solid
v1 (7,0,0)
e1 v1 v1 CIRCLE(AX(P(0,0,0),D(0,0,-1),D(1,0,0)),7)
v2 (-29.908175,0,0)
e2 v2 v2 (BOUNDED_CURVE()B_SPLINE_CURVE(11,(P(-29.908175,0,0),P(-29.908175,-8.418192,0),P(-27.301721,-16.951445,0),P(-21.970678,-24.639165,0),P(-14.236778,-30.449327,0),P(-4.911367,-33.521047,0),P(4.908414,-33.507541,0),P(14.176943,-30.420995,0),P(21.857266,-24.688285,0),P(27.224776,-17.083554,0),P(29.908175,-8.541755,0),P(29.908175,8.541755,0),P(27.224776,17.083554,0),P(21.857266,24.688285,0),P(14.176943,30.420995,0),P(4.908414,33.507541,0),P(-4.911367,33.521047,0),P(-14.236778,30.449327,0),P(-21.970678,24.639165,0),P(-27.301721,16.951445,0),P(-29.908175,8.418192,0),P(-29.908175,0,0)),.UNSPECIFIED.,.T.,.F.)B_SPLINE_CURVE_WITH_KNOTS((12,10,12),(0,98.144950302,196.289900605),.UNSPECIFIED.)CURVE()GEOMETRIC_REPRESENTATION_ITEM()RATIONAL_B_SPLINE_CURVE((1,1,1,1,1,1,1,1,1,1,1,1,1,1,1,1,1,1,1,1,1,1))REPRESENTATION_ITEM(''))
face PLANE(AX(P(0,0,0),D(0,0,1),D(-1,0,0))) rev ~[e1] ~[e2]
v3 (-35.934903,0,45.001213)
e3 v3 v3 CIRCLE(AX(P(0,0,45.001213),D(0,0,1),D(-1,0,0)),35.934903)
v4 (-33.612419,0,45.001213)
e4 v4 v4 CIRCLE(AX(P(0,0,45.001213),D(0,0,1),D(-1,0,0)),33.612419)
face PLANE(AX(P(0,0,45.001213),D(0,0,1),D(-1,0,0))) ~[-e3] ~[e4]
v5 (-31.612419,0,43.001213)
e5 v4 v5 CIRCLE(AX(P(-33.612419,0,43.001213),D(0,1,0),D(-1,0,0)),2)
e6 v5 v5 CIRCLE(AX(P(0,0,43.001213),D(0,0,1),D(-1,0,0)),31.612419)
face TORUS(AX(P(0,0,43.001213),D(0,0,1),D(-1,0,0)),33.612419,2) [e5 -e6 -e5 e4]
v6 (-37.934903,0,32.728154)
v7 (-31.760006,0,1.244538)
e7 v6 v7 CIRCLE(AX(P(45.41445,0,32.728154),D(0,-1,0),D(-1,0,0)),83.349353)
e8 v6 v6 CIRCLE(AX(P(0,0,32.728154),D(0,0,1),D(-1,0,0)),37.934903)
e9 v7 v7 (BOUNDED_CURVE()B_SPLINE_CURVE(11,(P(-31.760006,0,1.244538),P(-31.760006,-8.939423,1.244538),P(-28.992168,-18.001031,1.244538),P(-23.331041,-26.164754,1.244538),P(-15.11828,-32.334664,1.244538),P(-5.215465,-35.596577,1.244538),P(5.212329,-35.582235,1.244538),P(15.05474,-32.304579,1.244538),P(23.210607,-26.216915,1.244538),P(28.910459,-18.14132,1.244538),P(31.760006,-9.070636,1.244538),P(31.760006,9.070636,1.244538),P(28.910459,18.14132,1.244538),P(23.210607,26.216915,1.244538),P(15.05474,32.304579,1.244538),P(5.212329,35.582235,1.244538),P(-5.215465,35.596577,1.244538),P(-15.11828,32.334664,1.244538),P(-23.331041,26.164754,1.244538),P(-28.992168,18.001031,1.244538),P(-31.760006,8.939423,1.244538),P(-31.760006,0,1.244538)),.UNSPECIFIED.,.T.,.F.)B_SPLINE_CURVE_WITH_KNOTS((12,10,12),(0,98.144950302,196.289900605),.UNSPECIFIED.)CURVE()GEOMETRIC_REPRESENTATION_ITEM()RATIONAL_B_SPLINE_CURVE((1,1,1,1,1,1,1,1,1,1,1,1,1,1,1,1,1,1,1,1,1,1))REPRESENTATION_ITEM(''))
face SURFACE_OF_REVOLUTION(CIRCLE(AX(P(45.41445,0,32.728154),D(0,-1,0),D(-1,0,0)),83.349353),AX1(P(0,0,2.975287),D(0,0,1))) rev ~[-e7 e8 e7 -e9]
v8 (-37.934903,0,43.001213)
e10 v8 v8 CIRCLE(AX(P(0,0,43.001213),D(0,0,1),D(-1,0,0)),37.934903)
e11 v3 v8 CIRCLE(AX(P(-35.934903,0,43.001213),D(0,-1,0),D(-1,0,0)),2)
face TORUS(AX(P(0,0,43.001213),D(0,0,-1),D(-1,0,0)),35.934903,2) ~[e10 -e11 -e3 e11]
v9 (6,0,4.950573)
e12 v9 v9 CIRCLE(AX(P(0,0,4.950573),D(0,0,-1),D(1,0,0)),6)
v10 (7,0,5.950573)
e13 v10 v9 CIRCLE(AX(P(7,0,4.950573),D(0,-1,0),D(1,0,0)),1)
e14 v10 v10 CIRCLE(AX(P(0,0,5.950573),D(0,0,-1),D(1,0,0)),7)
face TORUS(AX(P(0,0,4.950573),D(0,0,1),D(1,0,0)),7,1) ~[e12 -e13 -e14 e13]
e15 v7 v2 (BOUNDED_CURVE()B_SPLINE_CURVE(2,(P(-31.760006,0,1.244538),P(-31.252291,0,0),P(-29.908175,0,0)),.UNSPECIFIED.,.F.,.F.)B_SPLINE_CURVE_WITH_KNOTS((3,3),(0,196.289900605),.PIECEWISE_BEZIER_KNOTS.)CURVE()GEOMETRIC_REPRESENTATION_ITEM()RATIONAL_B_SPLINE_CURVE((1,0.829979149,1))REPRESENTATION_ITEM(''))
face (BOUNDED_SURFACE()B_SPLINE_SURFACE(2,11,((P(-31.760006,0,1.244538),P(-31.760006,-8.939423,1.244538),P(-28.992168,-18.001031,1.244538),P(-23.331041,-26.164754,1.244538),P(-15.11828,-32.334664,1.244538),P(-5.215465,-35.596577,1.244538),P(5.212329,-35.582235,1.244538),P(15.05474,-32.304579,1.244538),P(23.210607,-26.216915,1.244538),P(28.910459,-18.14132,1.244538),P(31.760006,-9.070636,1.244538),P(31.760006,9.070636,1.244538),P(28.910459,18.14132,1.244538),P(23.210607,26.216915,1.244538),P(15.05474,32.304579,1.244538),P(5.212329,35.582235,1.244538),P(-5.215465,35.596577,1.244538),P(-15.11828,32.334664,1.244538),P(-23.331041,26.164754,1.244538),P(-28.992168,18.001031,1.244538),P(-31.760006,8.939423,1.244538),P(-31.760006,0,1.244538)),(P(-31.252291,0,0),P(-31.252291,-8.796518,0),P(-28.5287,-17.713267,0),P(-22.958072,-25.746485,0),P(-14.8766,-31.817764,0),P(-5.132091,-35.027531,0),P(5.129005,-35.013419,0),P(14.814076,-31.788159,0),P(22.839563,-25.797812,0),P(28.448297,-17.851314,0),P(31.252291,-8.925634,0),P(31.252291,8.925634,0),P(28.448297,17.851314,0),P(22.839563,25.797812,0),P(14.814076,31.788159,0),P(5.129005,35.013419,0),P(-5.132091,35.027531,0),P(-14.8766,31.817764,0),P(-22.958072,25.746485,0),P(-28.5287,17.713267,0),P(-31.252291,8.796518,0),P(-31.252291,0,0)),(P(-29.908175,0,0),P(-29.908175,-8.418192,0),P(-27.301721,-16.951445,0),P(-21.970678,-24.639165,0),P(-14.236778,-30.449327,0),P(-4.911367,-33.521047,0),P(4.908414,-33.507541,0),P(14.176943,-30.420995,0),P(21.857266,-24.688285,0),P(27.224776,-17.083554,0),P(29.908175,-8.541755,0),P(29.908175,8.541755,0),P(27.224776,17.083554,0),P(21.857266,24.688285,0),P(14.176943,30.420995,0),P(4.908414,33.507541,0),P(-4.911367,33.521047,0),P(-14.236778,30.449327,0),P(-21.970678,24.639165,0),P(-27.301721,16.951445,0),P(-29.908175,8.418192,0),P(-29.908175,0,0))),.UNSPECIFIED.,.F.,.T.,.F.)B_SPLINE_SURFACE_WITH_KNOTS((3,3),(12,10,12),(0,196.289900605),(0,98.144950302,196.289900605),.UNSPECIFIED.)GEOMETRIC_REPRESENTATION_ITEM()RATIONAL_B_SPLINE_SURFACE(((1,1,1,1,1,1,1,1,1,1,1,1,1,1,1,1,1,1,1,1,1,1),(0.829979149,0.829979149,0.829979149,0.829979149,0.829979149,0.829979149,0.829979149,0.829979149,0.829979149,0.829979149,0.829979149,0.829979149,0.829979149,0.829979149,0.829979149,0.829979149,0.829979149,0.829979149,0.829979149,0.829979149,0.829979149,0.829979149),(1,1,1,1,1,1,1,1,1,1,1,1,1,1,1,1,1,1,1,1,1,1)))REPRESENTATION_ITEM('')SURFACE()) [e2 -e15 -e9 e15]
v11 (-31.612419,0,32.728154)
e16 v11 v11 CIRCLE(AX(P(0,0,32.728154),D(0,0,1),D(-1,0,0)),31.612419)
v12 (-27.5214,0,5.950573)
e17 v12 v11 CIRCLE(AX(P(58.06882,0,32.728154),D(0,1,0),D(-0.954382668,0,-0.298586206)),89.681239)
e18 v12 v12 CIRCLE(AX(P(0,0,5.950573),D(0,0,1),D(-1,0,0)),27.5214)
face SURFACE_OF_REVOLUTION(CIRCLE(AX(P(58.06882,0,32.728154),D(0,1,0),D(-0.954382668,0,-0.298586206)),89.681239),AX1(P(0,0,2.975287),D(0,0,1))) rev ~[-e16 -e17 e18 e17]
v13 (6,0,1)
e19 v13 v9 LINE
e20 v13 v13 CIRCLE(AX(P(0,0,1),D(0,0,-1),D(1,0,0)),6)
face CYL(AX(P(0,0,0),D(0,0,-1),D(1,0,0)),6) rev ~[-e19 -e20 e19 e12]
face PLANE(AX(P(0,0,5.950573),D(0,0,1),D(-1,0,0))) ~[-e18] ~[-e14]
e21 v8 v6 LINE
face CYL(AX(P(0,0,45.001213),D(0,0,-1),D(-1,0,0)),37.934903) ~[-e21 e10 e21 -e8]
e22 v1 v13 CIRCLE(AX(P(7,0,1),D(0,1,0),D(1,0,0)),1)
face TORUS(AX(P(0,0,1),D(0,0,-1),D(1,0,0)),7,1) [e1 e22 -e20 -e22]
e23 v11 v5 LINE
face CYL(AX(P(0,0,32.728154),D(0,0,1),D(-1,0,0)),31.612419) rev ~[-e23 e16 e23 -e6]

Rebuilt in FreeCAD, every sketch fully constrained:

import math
import FreeCAD as App
import Part
import Sketcher

V = App.Vector
Q = App.Units.Quantity


def edges_at(feature, points):
    """Names of the edges that pass closest to the given points."""
    edges = feature.Shape.Edges
    near = lambda p: min(range(len(edges)), key=lambda i: edges[i].distToShape(Part.Vertex(*p))[0])
    return sorted({f"Edge{near(p) + 1}" for p in points})

doc = App.newDocument("Part")
params = doc.addObject("Spreadsheet::Sheet", "Params")
for row, (alias, value) in enumerate([
    ("revolution_angle", "360 deg"),
    ("fillet_radius", "2 mm"),
    ("fillet2_radius", "2 mm"),
    ("sketch2_diameter", "12 mm"),
    ("pocket1_length", "25 mm"),
    ("fillet3_radius", "1 mm"),
], start=1):
    params.set(f"A{row}", alias)
    params.set(f"B{row}", "=" + value)
    params.setAlias(f"B{row}", alias)

body = doc.addObject("PartDesign::Body", "Body")

sketch1 = body.newObject("Sketcher::SketchObject", "Sketch")
sketch1.AttachmentSupport = (doc.getObject("XZ_Plane"), [""])
sketch1.MapMode = "FlatFace"
sketch1.addGeometry(Part.LineSegment(V(-31.612419, 45.001213, 0), V(-37.934903, 45.001213, 0)), False)
sketch1.addGeometry(Part.LineSegment(V(-37.934903, 45.001213, 0), V(-37.934903, 32.728154, 0)), False)
sketch1.addGeometry(Part.ArcOfCircle(Part.Circle(V(45.41445, 32.728154, 0), V(0, 0, 1), 83.349353), math.radians(180), math.radians(203.120261)), False)
sketch1.addGeometry(Part.LineSegment(V(-31.240508, 0, 0), V(0, 0, 0)), False)
sketch1.addGeometry(Part.LineSegment(V(0, 0, 0), V(0, 5.950573, 0)), False)
sketch1.addGeometry(Part.LineSegment(V(0, 5.950573, 0), V(-27.5214, 5.950573, 0)), False)
sketch1.addGeometry(Part.ArcOfCircle(Part.Circle(V(58.06882, 32.728154, 0), V(0, 0, 1), 89.681239), math.radians(180), math.radians(197.372707)), False)
sketch1.addGeometry(Part.LineSegment(V(-31.612419, 32.728154, 0), V(-31.612419, 45.001213, 0)), False)
sketch1.addConstraint(Sketcher.Constraint("Coincident", 0, 2, 1, 1))
sketch1.addConstraint(Sketcher.Constraint("Tangent", 1, 2, 2, 1))
sketch1.addConstraint(Sketcher.Constraint("Coincident", 2, 2, 3, 1))
sketch1.addConstraint(Sketcher.Constraint("Coincident", 3, 2, 4, 1))
sketch1.addConstraint(Sketcher.Constraint("Coincident", 4, 2, 5, 1))
sketch1.addConstraint(Sketcher.Constraint("Coincident", 5, 2, 6, 2))
sketch1.addConstraint(Sketcher.Constraint("Tangent", 6, 1, 7, 1))
sketch1.addConstraint(Sketcher.Constraint("Coincident", 7, 2, 0, 1))
sketch1.addConstraint(Sketcher.Constraint("Horizontal", 0))
sketch1.addConstraint(Sketcher.Constraint("Vertical", 1))
sketch1.addConstraint(Sketcher.Constraint("Horizontal", 3))
sketch1.addConstraint(Sketcher.Constraint("Vertical", 4))
sketch1.addConstraint(Sketcher.Constraint("Horizontal", 5))
sketch1.addConstraint(Sketcher.Constraint("Vertical", 7))
sketch1.addConstraint(Sketcher.Constraint("Coincident", 3, 2, -1, 1))
sketch1.addConstraint(Sketcher.Constraint("Horizontal", 2, 3, 6, 3))
sketch1.addConstraint(Sketcher.Constraint("Radius", 6, Q("89.681239 mm")))
sketch1.addConstraint(Sketcher.Constraint("DistanceX", 5, 2, 5, 1, Q("27.5214 mm")))
sketch1.addConstraint(Sketcher.Constraint("Radius", 2, Q("83.349353 mm")))
sketch1.addConstraint(Sketcher.Constraint("DistanceY", 1, 2, 1, 1, Q("12.273058 mm")))
sketch1.addConstraint(Sketcher.Constraint("DistanceX", 0, 2, 0, 1, Q("6.322484 mm")))
sketch1.addConstraint(Sketcher.Constraint("DistanceX", 3, 1, 3, 2, Q("31.240508 mm")))
sketch1.addConstraint(Sketcher.Constraint("DistanceY", 4, 1, 4, 2, Q("5.950573 mm")))
revolution = body.newObject("PartDesign::Revolution", "Revolution")
revolution.Profile = sketch1
revolution.ReferenceAxis = (sketch1, ["V_Axis"])
revolution.setExpression("Angle", "Params.revolution_angle")
doc.recompute()

fillet = body.newObject("PartDesign::Fillet", "Fillet")
fillet.Base = (revolution, edges_at(revolution, [(31.612, 0, 45.001)]))
fillet.setExpression("Radius", "Params.fillet_radius")
doc.recompute()

fillet2 = body.newObject("PartDesign::Fillet", "Fillet001")
fillet2.Base = (fillet, edges_at(fillet, [(37.935, 0, 45.001), (31.241, 0, 0)]))
fillet2.setExpression("Radius", "Params.fillet2_radius")

sketch2 = body.newObject("Sketcher::SketchObject", "Sketch001")
sketch2.AttachmentSupport = (doc.getObject("XY_Plane"), [""])
sketch2.MapMode = "FlatFace"
sketch2.addGeometry(Part.Circle(V(0, 0, 0), V(0, 0, 1), 6), False)
sketch2.addConstraint(Sketcher.Constraint("Coincident", 0, 3, -1, 1))
sketch2.addConstraint(Sketcher.Constraint("Diameter", 0, Q("12 mm")))
sketch2.setExpression("Constraints[1]", "Params.sketch2_diameter")
pocket1 = body.newObject("PartDesign::Pocket", "Pocket")
pocket1.Profile = sketch2
pocket1.setExpression("Length", "Params.pocket1_length")
pocket1.Reversed = True
doc.recompute()

fillet3 = body.newObject("PartDesign::Fillet", "Fillet002")
fillet3.Base = (pocket1, edges_at(pocket1, [(-6, 0, 0), (-6, 0, 5.951)]))
fillet3.setExpression("Radius", "Params.fillet3_radius")

doc.recompute()
